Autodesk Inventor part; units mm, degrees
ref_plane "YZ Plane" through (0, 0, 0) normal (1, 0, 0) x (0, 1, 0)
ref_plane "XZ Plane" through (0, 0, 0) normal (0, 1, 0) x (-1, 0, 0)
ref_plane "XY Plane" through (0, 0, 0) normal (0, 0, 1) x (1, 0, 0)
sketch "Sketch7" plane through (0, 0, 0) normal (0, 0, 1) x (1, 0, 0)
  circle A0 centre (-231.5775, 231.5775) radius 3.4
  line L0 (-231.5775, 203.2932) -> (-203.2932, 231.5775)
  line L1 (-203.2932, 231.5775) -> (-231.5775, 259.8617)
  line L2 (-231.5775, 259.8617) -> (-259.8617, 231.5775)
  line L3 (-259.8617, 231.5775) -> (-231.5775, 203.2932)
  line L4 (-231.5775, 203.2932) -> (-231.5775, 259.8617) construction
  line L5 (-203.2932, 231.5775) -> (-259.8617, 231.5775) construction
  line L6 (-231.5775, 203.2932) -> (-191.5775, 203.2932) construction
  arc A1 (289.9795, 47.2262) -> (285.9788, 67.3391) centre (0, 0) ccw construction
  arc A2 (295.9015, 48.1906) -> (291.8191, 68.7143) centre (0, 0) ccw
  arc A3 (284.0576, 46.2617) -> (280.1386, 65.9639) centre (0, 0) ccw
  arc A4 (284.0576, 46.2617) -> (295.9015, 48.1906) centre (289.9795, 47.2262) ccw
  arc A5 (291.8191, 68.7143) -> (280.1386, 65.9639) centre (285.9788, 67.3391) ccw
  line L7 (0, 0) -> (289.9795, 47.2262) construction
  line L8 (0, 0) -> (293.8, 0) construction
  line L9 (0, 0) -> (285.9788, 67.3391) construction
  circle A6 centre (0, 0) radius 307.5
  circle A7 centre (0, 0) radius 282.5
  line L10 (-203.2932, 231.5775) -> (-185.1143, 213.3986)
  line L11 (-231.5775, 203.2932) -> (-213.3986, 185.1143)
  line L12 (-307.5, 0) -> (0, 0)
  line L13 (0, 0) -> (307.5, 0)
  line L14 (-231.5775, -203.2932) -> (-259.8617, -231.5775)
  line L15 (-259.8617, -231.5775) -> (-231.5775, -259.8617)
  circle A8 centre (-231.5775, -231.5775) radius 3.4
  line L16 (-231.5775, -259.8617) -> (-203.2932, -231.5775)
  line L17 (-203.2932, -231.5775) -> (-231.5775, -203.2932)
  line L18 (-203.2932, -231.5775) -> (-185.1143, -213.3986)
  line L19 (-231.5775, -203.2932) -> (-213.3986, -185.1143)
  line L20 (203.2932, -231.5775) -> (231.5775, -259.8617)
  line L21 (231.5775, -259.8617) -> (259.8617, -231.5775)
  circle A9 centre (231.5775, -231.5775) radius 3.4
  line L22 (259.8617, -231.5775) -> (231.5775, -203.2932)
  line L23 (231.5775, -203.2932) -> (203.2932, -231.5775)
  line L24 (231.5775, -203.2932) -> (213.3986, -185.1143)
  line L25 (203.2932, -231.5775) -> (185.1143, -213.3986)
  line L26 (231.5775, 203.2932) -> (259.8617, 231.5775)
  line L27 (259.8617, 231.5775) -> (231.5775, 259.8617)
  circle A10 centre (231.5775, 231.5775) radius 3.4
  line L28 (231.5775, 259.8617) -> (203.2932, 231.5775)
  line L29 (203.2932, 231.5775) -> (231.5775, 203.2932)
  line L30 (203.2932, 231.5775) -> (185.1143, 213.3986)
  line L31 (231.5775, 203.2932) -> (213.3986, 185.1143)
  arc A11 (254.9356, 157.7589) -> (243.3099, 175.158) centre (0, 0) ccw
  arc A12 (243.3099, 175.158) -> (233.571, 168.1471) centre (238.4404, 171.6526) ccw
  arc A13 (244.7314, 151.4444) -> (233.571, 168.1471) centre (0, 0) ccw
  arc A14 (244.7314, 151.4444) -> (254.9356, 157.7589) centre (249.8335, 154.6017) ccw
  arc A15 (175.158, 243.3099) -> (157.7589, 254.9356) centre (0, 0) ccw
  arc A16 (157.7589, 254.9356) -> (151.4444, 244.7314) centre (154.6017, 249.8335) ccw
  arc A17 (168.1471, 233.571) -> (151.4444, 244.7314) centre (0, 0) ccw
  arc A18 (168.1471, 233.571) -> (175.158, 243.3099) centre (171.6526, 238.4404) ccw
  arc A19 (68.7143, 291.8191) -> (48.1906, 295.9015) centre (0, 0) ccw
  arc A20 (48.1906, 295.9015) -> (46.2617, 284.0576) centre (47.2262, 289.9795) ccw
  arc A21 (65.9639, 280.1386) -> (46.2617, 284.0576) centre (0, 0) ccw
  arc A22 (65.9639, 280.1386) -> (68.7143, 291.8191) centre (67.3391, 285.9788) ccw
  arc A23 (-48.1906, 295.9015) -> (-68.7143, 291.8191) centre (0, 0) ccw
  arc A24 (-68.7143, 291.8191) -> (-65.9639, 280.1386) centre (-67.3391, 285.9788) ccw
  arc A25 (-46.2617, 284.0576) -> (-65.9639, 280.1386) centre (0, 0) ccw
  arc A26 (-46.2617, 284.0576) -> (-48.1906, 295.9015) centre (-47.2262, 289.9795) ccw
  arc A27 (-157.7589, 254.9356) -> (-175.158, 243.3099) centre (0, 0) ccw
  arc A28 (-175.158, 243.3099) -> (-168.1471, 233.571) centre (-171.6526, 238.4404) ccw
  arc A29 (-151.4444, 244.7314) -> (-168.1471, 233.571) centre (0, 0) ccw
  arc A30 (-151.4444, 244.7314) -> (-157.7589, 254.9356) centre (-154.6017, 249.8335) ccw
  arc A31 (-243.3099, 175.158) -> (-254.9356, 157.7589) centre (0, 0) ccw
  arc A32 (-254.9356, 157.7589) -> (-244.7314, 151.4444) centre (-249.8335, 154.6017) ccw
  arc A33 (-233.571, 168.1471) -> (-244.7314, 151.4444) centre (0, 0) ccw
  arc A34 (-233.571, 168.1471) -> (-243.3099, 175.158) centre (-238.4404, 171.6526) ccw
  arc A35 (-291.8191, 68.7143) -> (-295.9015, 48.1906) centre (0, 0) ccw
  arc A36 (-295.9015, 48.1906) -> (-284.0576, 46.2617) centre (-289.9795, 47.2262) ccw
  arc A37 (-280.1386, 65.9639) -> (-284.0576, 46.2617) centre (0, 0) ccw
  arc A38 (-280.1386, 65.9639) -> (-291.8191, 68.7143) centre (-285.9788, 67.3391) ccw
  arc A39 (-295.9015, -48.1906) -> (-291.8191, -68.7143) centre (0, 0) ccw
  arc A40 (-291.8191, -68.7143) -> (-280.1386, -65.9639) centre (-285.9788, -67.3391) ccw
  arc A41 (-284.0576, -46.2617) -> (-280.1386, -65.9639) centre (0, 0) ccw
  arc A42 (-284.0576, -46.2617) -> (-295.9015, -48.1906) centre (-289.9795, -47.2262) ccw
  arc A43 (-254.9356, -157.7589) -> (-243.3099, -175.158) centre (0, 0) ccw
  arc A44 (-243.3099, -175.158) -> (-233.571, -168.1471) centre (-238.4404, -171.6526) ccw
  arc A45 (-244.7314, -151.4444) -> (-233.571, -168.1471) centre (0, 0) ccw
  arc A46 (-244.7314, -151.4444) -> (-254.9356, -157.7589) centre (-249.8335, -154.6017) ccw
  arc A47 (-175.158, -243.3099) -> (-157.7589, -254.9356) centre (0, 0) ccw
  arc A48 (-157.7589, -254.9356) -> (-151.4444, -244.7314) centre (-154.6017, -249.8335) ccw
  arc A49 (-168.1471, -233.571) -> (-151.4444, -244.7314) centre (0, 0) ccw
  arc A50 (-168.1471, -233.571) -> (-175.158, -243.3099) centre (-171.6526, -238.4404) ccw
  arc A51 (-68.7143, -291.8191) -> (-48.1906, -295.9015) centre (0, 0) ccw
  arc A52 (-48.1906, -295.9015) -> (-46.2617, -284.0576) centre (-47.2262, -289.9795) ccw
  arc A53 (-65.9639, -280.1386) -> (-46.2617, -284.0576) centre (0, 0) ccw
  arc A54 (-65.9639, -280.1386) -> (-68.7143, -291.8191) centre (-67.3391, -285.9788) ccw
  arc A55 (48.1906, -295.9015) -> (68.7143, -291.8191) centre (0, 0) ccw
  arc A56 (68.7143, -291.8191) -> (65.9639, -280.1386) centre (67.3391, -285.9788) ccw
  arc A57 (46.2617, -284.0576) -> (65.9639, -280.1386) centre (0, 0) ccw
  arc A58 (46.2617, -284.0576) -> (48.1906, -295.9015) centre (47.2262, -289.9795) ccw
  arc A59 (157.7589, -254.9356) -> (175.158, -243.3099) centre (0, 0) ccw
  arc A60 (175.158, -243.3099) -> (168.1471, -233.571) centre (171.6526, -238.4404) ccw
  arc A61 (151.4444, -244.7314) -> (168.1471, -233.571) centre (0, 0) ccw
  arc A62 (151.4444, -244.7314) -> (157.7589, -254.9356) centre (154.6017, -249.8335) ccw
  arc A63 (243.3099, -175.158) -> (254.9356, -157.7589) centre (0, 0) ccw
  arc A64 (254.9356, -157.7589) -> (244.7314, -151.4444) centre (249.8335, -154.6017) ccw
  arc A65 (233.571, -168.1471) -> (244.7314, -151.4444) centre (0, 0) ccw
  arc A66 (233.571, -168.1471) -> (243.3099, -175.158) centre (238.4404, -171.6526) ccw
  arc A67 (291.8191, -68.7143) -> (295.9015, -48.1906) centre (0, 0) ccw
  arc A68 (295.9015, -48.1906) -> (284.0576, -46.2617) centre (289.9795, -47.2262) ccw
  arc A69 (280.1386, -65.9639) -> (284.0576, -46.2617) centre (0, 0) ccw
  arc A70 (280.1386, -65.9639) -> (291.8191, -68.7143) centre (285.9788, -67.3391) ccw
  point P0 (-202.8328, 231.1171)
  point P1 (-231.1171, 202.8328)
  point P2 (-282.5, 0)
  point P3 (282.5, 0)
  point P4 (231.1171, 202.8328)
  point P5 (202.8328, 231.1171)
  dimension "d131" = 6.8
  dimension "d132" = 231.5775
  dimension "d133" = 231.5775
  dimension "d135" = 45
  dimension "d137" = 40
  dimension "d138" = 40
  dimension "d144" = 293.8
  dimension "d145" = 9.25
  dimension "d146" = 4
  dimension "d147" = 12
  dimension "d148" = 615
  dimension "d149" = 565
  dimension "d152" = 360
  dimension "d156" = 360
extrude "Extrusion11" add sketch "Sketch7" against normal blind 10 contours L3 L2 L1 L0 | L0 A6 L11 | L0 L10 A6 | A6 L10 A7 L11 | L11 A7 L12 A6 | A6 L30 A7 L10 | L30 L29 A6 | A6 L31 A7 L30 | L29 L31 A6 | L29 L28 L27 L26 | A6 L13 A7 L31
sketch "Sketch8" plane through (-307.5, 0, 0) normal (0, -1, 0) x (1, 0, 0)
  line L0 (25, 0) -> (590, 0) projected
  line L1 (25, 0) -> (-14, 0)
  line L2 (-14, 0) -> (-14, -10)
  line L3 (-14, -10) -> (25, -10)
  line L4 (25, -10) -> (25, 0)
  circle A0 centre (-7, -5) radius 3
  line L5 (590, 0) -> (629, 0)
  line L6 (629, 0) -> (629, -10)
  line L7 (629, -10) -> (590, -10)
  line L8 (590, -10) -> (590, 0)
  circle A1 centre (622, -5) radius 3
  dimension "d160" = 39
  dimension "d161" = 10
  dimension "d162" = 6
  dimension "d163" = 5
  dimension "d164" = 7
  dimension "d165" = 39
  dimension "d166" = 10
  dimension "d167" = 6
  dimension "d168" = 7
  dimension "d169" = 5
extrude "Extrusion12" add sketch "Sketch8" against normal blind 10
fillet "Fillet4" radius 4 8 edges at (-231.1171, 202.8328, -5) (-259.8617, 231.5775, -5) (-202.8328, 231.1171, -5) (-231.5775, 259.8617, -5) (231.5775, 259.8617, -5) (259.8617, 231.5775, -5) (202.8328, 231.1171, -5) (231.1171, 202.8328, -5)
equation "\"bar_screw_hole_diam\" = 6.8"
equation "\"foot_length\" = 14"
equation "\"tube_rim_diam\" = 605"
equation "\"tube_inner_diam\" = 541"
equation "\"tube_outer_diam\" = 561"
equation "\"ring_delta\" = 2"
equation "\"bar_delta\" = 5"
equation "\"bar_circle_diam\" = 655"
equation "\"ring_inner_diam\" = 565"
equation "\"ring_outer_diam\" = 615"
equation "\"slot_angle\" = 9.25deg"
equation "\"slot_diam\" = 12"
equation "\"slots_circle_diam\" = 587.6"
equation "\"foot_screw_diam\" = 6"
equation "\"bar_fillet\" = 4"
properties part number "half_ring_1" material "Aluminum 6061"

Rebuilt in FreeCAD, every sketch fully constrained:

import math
import FreeCAD as App
import Part
import Sketcher


def edges_at(feature, points):
    """Names of the edges that pass closest to the given points."""
    edges = feature.Shape.Edges
    near = lambda p: min(range(len(edges)), key=lambda i: edges[i].distToShape(Part.Vertex(*p))[0])
    return sorted({f"Edge{near(p) + 1}" for p in points})


def add_polygon(sketch, points):
    """Adds a closed chain of lines whose ends are joined by coincident constraints."""
    first, n = sketch.GeometryCount, len(points)
    for a, b in zip(points, points[1:] + points[:1]):
        sketch.addGeometry(Part.LineSegment(App.Vector(*a, 0), App.Vector(*b, 0)), False)
    for i in range(n):
        sketch.addConstraint(Sketcher.Constraint("Coincident", first + i, 2, first + (i + 1) % n, 1))

doc = App.newDocument("Part")
params = doc.addObject("Spreadsheet::Sheet", "Params")
for row, (alias, value) in enumerate([
    ("sketch1_radius", "6 mm"),
    ("sketch1_diameter", "6.8 mm"),
    ("sketch1_radius2", "307.5 mm"),
    ("sketch1_radius3", "282.5 mm"),
    ("sketch1_length", "40 mm"),
    ("pad1_length", "10 mm"),
    ("sketch2_diameter", "6 mm"),
    ("sketch2_width", "39 mm"),
    ("sketch2_height", "10 mm"),
    ("pad2_length", "10 mm"),
    ("fillet_radius", "4 mm"),
], start=1):
    params.set(f"A{row}", alias)
    params.set(f"B{row}", "=" + value)
    params.setAlias(f"B{row}", alias)

body = doc.addObject("PartDesign::Body", "Body")

# Sketch on XY plane
sketch1 = doc.addObject("Sketcher::SketchObject", "Sketch")
body.addObject(sketch1)
sketch1.AttachmentSupport = (doc.XY_Plane, [""])
sketch1.MapMode = "FlatFace"
sketch1.addGeometry(Part.LineSegment(App.Vector(-259.8617, 231.5775, 0), App.Vector(-231.5775, 203.2932, 0)), False)
sketch1.addGeometry(Part.LineSegment(App.Vector(-231.5775, 203.2932, 0), App.Vector(-231.11709, 202.83279, 0)), False)
sketch1.addGeometry(Part.ArcOfCircle(Part.Circle(App.Vector(0, 0, 0), App.Vector(0, 0, 1), 307.5), math.radians(138.729191), math.radians(180)), False)
sketch1.addGeometry(Part.LineSegment(App.Vector(-307.5, 0, 0), App.Vector(-282.5, 0, 0)), False)
sketch1.addGeometry(Part.ArcOfCircle(Part.Circle(App.Vector(0, 0, 0), App.Vector(0, 0, 1), 282.5), math.radians(0), math.radians(180)), False)
sketch1.addGeometry(Part.LineSegment(App.Vector(282.5, 0, 0), App.Vector(307.5, 0, 0)), False)
sketch1.addGeometry(Part.ArcOfCircle(Part.Circle(App.Vector(0, 0, 0), App.Vector(0, 0, 1), 307.5), math.radians(0), math.radians(41.270809)), False)
sketch1.addGeometry(Part.LineSegment(App.Vector(231.11709, 202.83279, 0), App.Vector(231.5775, 203.2932, 0)), False)
sketch1.addGeometry(Part.LineSegment(App.Vector(231.5775, 203.2932, 0), App.Vector(259.8617, 231.5775, 0)), False)
sketch1.addGeometry(Part.LineSegment(App.Vector(259.8617, 231.5775, 0), App.Vector(231.5775, 259.8617, 0)), False)
sketch1.addGeometry(Part.LineSegment(App.Vector(231.5775, 259.8617, 0), App.Vector(203.2932, 231.5775, 0)), False)
sketch1.addGeometry(Part.LineSegment(App.Vector(203.2932, 231.5775, 0), App.Vector(202.83279, 231.11709, 0)), False)
sketch1.addGeometry(Part.ArcOfCircle(Part.Circle(App.Vector(0, 0, 0), App.Vector(0, 0, 1), 307.5), math.radians(48.729191), math.radians(131.270809)), False)
sketch1.addGeometry(Part.LineSegment(App.Vector(-202.83279, 231.11709, 0), App.Vector(-203.2932, 231.5775, 0)), False)
sketch1.addGeometry(Part.LineSegment(App.Vector(-203.2932, 231.5775, 0), App.Vector(-231.5775, 259.8617, 0)), False)
sketch1.addGeometry(Part.LineSegment(App.Vector(-231.5775, 259.8617, 0), App.Vector(-259.8617, 231.5775, 0)), False)
sketch1.addGeometry(Part.Circle(App.Vector(-231.5775, 231.5775, 0), App.Vector(0, 0, 1), 3.4), False)
sketch1.addGeometry(Part.ArcOfCircle(Part.Circle(App.Vector(-238.4404, 171.6526, 0), App.Vector(0, 0, 1), 5.999966), math.radians(-35.75026), math.radians(144.251072)), False)
sketch1.addGeometry(Part.ArcOfCircle(Part.Circle(App.Vector(0.006044, -0.004193, 0), App.Vector(0, 0, 1), 287.807389), math.radians(144.250019), math.radians(148.249921)), False)
sketch1.addGeometry(Part.ArcOfCircle(Part.Circle(App.Vector(-249.8335, 154.6017, 0), App.Vector(0, 0, 1), 5.999945), math.radians(148.250611), math.radians(328.249799)), False)
sketch1.addGeometry(Part.ArcOfCircle(Part.Circle(App.Vector(-0.001941, 0.001346, 0), App.Vector(0, 0, 1), 299.797625), math.radians(144.250002), math.radians(148.25003)), False)
sketch1.addGeometry(Part.ArcOfCircle(Part.Circle(App.Vector(-0.014072, 0.003055, 0), App.Vector(0, 0, 1), 299.785605), math.radians(166.749948), math.radians(170.750148)), False)
sketch1.addGeometry(Part.ArcOfCircle(Part.Circle(App.Vector(-285.9788, 67.3391, 0), App.Vector(0, 0, 1), 5.999926), math.radians(-13.250144), math.radians(166.750075)), False)
sketch1.addGeometry(Part.ArcOfCircle(Part.Circle(App.Vector(-0.008792, 0.001909, 0), App.Vector(0, 0, 1), 287.791059), math.radians(166.749966), math.radians(170.750097)), False)
sketch1.addGeometry(Part.ArcOfCircle(Part.Circle(App.Vector(-289.9795, 47.2262, 0), App.Vector(0, 0, 1), 6.000013), math.radians(170.750556), math.radians(350.74946)), False)
sketch1.addGeometry(Part.ArcOfCircle(Part.Circle(App.Vector(171.6526, 238.4404, 0), App.Vector(0, 0, 1), 5.999966), math.radians(-125.75026), math.radians(54.251072)), False)
sketch1.addGeometry(Part.ArcOfCircle(Part.Circle(App.Vector(-0.004193, -0.006044, 0), App.Vector(0, 0, 1), 287.807389), math.radians(54.250019), math.radians(58.249921)), False)
sketch1.addGeometry(Part.ArcOfCircle(Part.Circle(App.Vector(154.6017, 249.8335, 0), App.Vector(0, 0, 1), 5.999945), math.radians(58.250611), math.radians(238.249799)), False)
sketch1.addGeometry(Part.ArcOfCircle(Part.Circle(App.Vector(0.001346, 0.001941, 0), App.Vector(0, 0, 1), 299.797625), math.radians(54.250002), math.radians(58.25003)), False)
sketch1.addGeometry(Part.ArcOfCircle(Part.Circle(App.Vector(0.001278, -0.001987, 0), App.Vector(0, 0, 1), 299.802346), math.radians(121.750002), math.radians(125.749966)), False)
sketch1.addGeometry(Part.ArcOfCircle(Part.Circle(App.Vector(-154.6017, 249.8335, 0), App.Vector(0, 0, 1), 5.999997), math.radians(-58.249799), math.radians(121.749389)), False)
sketch1.addGeometry(Part.ArcOfCircle(Part.Circle(App.Vector(-0.003979, 0.006187, 0), App.Vector(0, 0, 1), 287.792688), math.radians(121.749977), math.radians(125.750083)), False)
sketch1.addGeometry(Part.ArcOfCircle(Part.Circle(App.Vector(-171.6526, 238.4404, 0), App.Vector(0, 0, 1), 5.999988), math.radians(125.748928), math.radians(305.75026)), False)
sketch1.addGeometry(Part.ArcOfCircle(Part.Circle(App.Vector(0.002563, -0.014172, 0), App.Vector(0, 0, 1), 299.814386), math.radians(99.250044), math.radians(103.24986)), False)
sketch1.addGeometry(Part.ArcOfCircle(Part.Circle(App.Vector(-47.2262, 289.9795, 0), App.Vector(0, 0, 1), 5.99993), math.radians(-80.74946), math.radians(99.249444)), False)
sketch1.addGeometry(Part.ArcOfCircle(Part.Circle(App.Vector(0.001601, -0.008854, 0), App.Vector(0, 0, 1), 287.809039), math.radians(99.250028), math.radians(103.249909)), False)
sketch1.addGeometry(Part.ArcOfCircle(Part.Circle(App.Vector(-67.3391, 285.9788, 0), App.Vector(0, 0, 1), 6.000023), math.radians(103.249925), math.radians(283.250144)), False)
sketch1.addGeometry(Part.ArcOfCircle(Part.Circle(App.Vector(0.003055, 0.014072, 0), App.Vector(0, 0, 1), 299.785605), math.radians(76.749948), math.radians(80.750148)), False)
sketch1.addGeometry(Part.ArcOfCircle(Part.Circle(App.Vector(67.3391, 285.9788, 0), App.Vector(0, 0, 1), 5.999926), math.radians(-103.250144), math.radians(76.750075)), False)
sketch1.addGeometry(Part.ArcOfCircle(Part.Circle(App.Vector(0.001909, 0.008792, 0), App.Vector(0, 0, 1), 287.791059), math.radians(76.749966), math.radians(80.750097)), False)
sketch1.addGeometry(Part.ArcOfCircle(Part.Circle(App.Vector(47.2262, 289.9795, 0), App.Vector(0, 0, 1), 6.000013), math.radians(80.750556), math.radians(260.74946)), False)
sketch1.addGeometry(Part.ArcOfCircle(Part.Circle(App.Vector(249.8335, 154.6017, 0), App.Vector(0, 0, 1), 5.999997), math.radians(-148.249799), math.radians(31.749389)), False)
sketch1.addGeometry(Part.ArcOfCircle(Part.Circle(App.Vector(0.006187, 0.003979, 0), App.Vector(0, 0, 1), 287.792688), math.radians(31.749977), math.radians(35.750083)), False)
sketch1.addGeometry(Part.ArcOfCircle(Part.Circle(App.Vector(238.4404, 171.6526, 0), App.Vector(0, 0, 1), 5.999988), math.radians(35.748928), math.radians(215.75026)), False)
sketch1.addGeometry(Part.ArcOfCircle(Part.Circle(App.Vector(-0.001987, -0.001278, 0), App.Vector(0, 0, 1), 299.802346), math.radians(31.750002), math.radians(35.749966)), False)
sketch1.addGeometry(Part.ArcOfCircle(Part.Circle(App.Vector(-0.014172, -0.002563, 0), App.Vector(0, 0, 1), 299.814386), math.radians(9.250044), math.radians(13.24986)), False)
sketch1.addGeometry(Part.ArcOfCircle(Part.Circle(App.Vector(289.9795, 47.2262, 0), App.Vector(0, 0, 1), 5.99993), math.radians(-170.74946), math.radians(9.249444)), False)
sketch1.addGeometry(Part.ArcOfCircle(Part.Circle(App.Vector(-0.008854, -0.001601, 0), App.Vector(0, 0, 1), 287.809039), math.radians(9.250028), math.radians(13.249909)), False)
sketch1.addGeometry(Part.ArcOfCircle(Part.Circle(App.Vector(285.9788, 67.3391, 0), App.Vector(0, 0, 1), 6.000023), math.radians(13.249925), math.radians(193.250144)), False)
sketch1.addGeometry(Part.Circle(App.Vector(231.5775, 231.5775, 0), App.Vector(0, 0, 1), 3.4), False)
sketch1.addConstraint(Sketcher.Constraint("Coincident", 0, 2, 1, 1))
sketch1.addConstraint(Sketcher.Constraint("Coincident", 1, 2, 2, 1))
sketch1.addConstraint(Sketcher.Constraint("Coincident", 2, 2, 3, 1))
sketch1.addConstraint(Sketcher.Constraint("Coincident", 3, 2, 4, 2))
sketch1.addConstraint(Sketcher.Constraint("Coincident", 4, 1, 5, 1))
sketch1.addConstraint(Sketcher.Constraint("Coincident", 5, 2, 6, 1))
sketch1.addConstraint(Sketcher.Constraint("Coincident", 6, 2, 7, 1))
sketch1.addConstraint(Sketcher.Constraint("Coincident", 7, 2, 8, 1))
sketch1.addConstraint(Sketcher.Constraint("Coincident", 8, 2, 9, 1))
sketch1.addConstraint(Sketcher.Constraint("Coincident", 9, 2, 10, 1))
sketch1.addConstraint(Sketcher.Constraint("Coincident", 10, 2, 11, 1))
sketch1.addConstraint(Sketcher.Constraint("Coincident", 11, 2, 12, 1))
sketch1.addConstraint(Sketcher.Constraint("Coincident", 12, 2, 13, 1))
sketch1.addConstraint(Sketcher.Constraint("Coincident", 13, 2, 14, 1))
sketch1.addConstraint(Sketcher.Constraint("Coincident", 14, 2, 15, 1))
sketch1.addConstraint(Sketcher.Constraint("Coincident", 15, 2, 0, 1))
sketch1.addConstraint(Sketcher.Constraint("Tangent", 17, 1, 18, 1))
sketch1.addConstraint(Sketcher.Constraint("Tangent", 18, 2, 19, 2))
sketch1.addConstraint(Sketcher.Constraint("Tangent", 19, 1, 20, 2))
sketch1.addConstraint(Sketcher.Constraint("Tangent", 20, 1, 17, 2))
sketch1.addConstraint(Sketcher.Constraint("Tangent", 21, 1, 22, 2))
sketch1.addConstraint(Sketcher.Constraint("Tangent", 22, 1, 23, 1))
sketch1.addConstraint(Sketcher.Constraint("Tangent", 23, 2, 24, 2))
sketch1.addConstraint(Sketcher.Constraint("Tangent", 24, 1, 21, 2))
sketch1.addConstraint(Sketcher.Constraint("Tangent", 25, 1, 26, 1))
sketch1.addConstraint(Sketcher.Constraint("Tangent", 26, 2, 27, 2))
sketch1.addConstraint(Sketcher.Constraint("Tangent", 27, 1, 28, 2))
sketch1.addConstraint(Sketcher.Constraint("Tangent", 28, 1, 25, 2))
sketch1.addConstraint(Sketcher.Constraint("Tangent", 29, 1, 30, 2))
sketch1.addConstraint(Sketcher.Constraint("Tangent", 30, 1, 31, 1))
sketch1.addConstraint(Sketcher.Constraint("Tangent", 31, 2, 32, 2))
sketch1.addConstraint(Sketcher.Constraint("Tangent", 32, 1, 29, 2))
sketch1.addConstraint(Sketcher.Constraint("Tangent", 33, 1, 34, 2))
sketch1.addConstraint(Sketcher.Constraint("Tangent", 34, 1, 35, 1))
sketch1.addConstraint(Sketcher.Constraint("Tangent", 35, 2, 36, 2))
sketch1.addConstraint(Sketcher.Constraint("Tangent", 36, 1, 33, 2))
sketch1.addConstraint(Sketcher.Constraint("Tangent", 37, 1, 38, 2))
sketch1.addConstraint(Sketcher.Constraint("Tangent", 38, 1, 39, 1))
sketch1.addConstraint(Sketcher.Constraint("Tangent", 39, 2, 40, 2))
sketch1.addConstraint(Sketcher.Constraint("Tangent", 40, 1, 37, 2))
sketch1.addConstraint(Sketcher.Constraint("Tangent", 41, 1, 42, 1))
sketch1.addConstraint(Sketcher.Constraint("Tangent", 42, 2, 43, 2))
sketch1.addConstraint(Sketcher.Constraint("Tangent", 43, 1, 44, 2))
sketch1.addConstraint(Sketcher.Constraint("Tangent", 44, 1, 41, 2))
sketch1.addConstraint(Sketcher.Constraint("Tangent", 45, 1, 46, 2))
sketch1.addConstraint(Sketcher.Constraint("Tangent", 46, 1, 47, 1))
sketch1.addConstraint(Sketcher.Constraint("Tangent", 47, 2, 48, 2))
sketch1.addConstraint(Sketcher.Constraint("Tangent", 48, 1, 45, 2))
sketch1.addConstraint(Sketcher.Constraint("Horizontal", 3))
sketch1.addConstraint(Sketcher.Constraint("Horizontal", 5))
sketch1.addConstraint(Sketcher.Constraint("Coincident", 2, 3, -1, 1))
sketch1.addConstraint(Sketcher.Constraint("Coincident", 4, 3, -1, 1))
sketch1.addConstraint(Sketcher.Constraint("Coincident", 6, 3, -1, 1))
sketch1.addConstraint(Sketcher.Constraint("Coincident", 12, 3, -1, 1))
sketch1.addConstraint(Sketcher.Constraint("Equal", 2, 6))
sketch1.addConstraint(Sketcher.Constraint("Equal", 6, 12))
sketch1.addConstraint(Sketcher.Constraint("Equal", 17, 19))
sketch1.addConstraint(Sketcher.Constraint("Equal", 19, 22))
sketch1.addConstraint(Sketcher.Constraint("Equal", 22, 24))
sketch1.addConstraint(Sketcher.Constraint("Equal", 24, 25))
sketch1.addConstraint(Sketcher.Constraint("Equal", 18, 26))
sketch1.addConstraint(Sketcher.Constraint("Equal", 25, 27))
sketch1.addConstraint(Sketcher.Constraint("Equal", 20, 28))
sketch1.addConstraint(Sketcher.Constraint("Equal", 27, 30))
sketch1.addConstraint(Sketcher.Constraint("Equal", 30, 32))
sketch1.addConstraint(Sketcher.Constraint("Equal", 32, 34))
sketch1.addConstraint(Sketcher.Constraint("Equal", 34, 36))
sketch1.addConstraint(Sketcher.Constraint("Equal", 21, 37))
sketch1.addConstraint(Sketcher.Constraint("Equal", 36, 38))
sketch1.addConstraint(Sketcher.Constraint("Equal", 23, 39))
sketch1.addConstraint(Sketcher.Constraint("Equal", 38, 40))
sketch1.addConstraint(Sketcher.Constraint("Equal", 40, 41))
sketch1.addConstraint(Sketcher.Constraint("Equal", 31, 42))
sketch1.addConstraint(Sketcher.Constraint("Equal", 41, 43))
sketch1.addConstraint(Sketcher.Constraint("Equal", 29, 44))
sketch1.addConstraint(Sketcher.Constraint("Equal", 33, 45))
sketch1.addConstraint(Sketcher.Constraint("Equal", 43, 46))
sketch1.addConstraint(Sketcher.Constraint("Equal", 35, 47))
sketch1.addConstraint(Sketcher.Constraint("Equal", 46, 48))
sketch1.addConstraint(Sketcher.Constraint("Equal", 16, 49))
sketch1.addConstraint(Sketcher.Constraint("Symmetric", 27, 3, 30, 3, -2))
sketch1.addConstraint(Sketcher.Constraint("Symmetric", 25, 3, 32, 3, -2))
sketch1.addConstraint(Sketcher.Constraint("Symmetric", 36, 3, 38, 3, -2))
sketch1.addConstraint(Sketcher.Constraint("Symmetric", 34, 3, 40, 3, -2))
sketch1.addConstraint(Sketcher.Constraint("Symmetric", 19, 3, 41, 3, -2))
sketch1.addConstraint(Sketcher.Constraint("Symmetric", 17, 3, 43, 3, -2))
sketch1.addConstraint(Sketcher.Constraint("Symmetric", 24, 3, 46, 3, -2))
sketch1.addConstraint(Sketcher.Constraint("Symmetric", 22, 3, 48, 3, -2))
sketch1.addConstraint(Sketcher.Constraint("Symmetric", 16, 3, 49, 3, -2))
sketch1.addConstraint(Sketcher.Constraint("Symmetric", 0, 2, 7, 2, -2))
sketch1.addConstraint(Sketcher.Constraint("Symmetric", 10, 2, 13, 2, -2))
sketch1.addConstraint(Sketcher.Constraint("Symmetric", 9, 2, 14, 2, -2))
sketch1.addConstraint(Sketcher.Constraint("Symmetric", 8, 2, 15, 2, -2))
sketch1.addConstraint(Sketcher.Constraint("Symmetric", 28, 3, 29, 3, -1))
sketch1.addConstraint(Sketcher.Constraint("Symmetric", 35, 3, 39, 3, -1))
sketch1.addConstraint(Sketcher.Constraint("Symmetric", 18, 3, 42, 3, -1))
sketch1.addConstraint(Sketcher.Constraint("Symmetric", 23, 3, 47, 3, -1))
sketch1.addConstraint(Sketcher.Constraint("PointOnObject", 2, 2, -1))
sketch1.addConstraint(Sketcher.Constraint("PointOnObject", 4, 1, -1))
sketch1.addConstraint(Sketcher.Constraint("Parallel", 0, 1))
sketch1.addConstraint(Sketcher.Constraint("Perpendicular", 1, 7))
sketch1.addConstraint(Sketcher.Constraint("Parallel", 7, 8))
sketch1.addConstraint(Sketcher.Constraint("Perpendicular", 8, 9))
sketch1.addConstraint(Sketcher.Constraint("Perpendicular", 9, 10))
sketch1.addConstraint(Sketcher.Constraint("Parallel", 10, 11))
sketch1.addConstraint(Sketcher.Constraint("Perpendicular", 11, 13))
sketch1.addConstraint(Sketcher.Constraint("Horizontal", 23, 3, 28, 3))
sketch1.addConstraint(Sketcher.Constraint("Horizontal", 49, 3, 8, 2))
sketch1.addConstraint(Sketcher.Constraint("Horizontal", 8, 2, 10, 2))
sketch1.addConstraint(Sketcher.Constraint("Vertical", 20, 3, 44, 3))
sketch1.addConstraint(Sketcher.Constraint("Vertical", 21, 3, 45, 3))
sketch1.addConstraint(Sketcher.Constraint("Vertical", 16, 3, 0, 2))
sketch1.addConstraint(Sketcher.Constraint("Vertical", 7, 2, 9, 2))
sketch1.addConstraint(Sketcher.Constraint("Equal", 7, 11))
sketch1.addConstraint(Sketcher.Constraint("Radius", 17, 6.0))
sketch1.addConstraint(Sketcher.Constraint("Diameter", 16, 6.8))
sketch1.addConstraint(Sketcher.Constraint("Radius", 2, 307.5))
sketch1.addConstraint(Sketcher.Constraint("Radius", 4, 282.5))
sketch1.addConstraint(Sketcher.Constraint("Distance", 0, 40.0))
sketch1.addConstraint(Sketcher.Constraint("Radius", 23, 287.791))
sketch1.addConstraint(Sketcher.Constraint("Radius", 35, 287.809))
sketch1.addConstraint(Sketcher.Constraint("DistanceX", 16, 3, -1, 1, 231.5775))
sketch1.addConstraint(Sketcher.Constraint("Radius", 18, 287.8074))
sketch1.addConstraint(Sketcher.Constraint("Radius", 20, 299.7976))
sketch1.addConstraint(Sketcher.Constraint("Radius", 21, 299.7856))
sketch1.addConstraint(Sketcher.Constraint("DistanceX", 20, 1, -1, 1, 243.31))
sketch1.addConstraint(Sketcher.Constraint("DistanceY", -1, 1, 28, 1, 243.31))
sketch1.addConstraint(Sketcher.Constraint("DistanceY", -1, 1, 22, 3, 67.339))
sketch1.addConstraint(Sketcher.Constraint("DistanceX", 36, 3, -1, 1, 67.339))
sketch1.addConstraint(Sketcher.Constraint("DistanceY", -1, 1, 19, 1, 157.759))
sketch1.addConstraint(Sketcher.Constraint("DistanceX", -1, 1, 27, 1, 157.759))
sketch1.addConstraint(Sketcher.Constraint("DistanceX", 24, 3, -1, 1, 289.9795))
sketch1.addConstraint(Sketcher.Constraint("DistanceX", 34, 3, -1, 1, 47.2262))
sketch1.setExpression("Constraints[114]", "Params.sketch1_radius")
sketch1.setExpression("Constraints[115]", "Params.sketch1_diameter")
sketch1.setExpression("Constraints[116]", "Params.sketch1_radius2")
sketch1.setExpression("Constraints[117]", "Params.sketch1_radius3")
sketch1.setExpression("Constraints[118]", "Params.sketch1_length")
pad1 = doc.addObject("PartDesign::Pad", "Pad")
body.addObject(pad1)
pad1.Profile = sketch1
pad1.setExpression("Length", "Params.pad1_length")
pad1.Reversed = True

# Sketch on XZ plane
sketch2 = doc.addObject("Sketcher::SketchObject", "Sketch001")
body.addObject(sketch2)
sketch2.AttachmentSupport = (doc.XZ_Plane, [""])
sketch2.MapMode = "FlatFace"
add_polygon(sketch2, [(321.5, 0), (282.5, 0), (282.5, -10), (321.5, -10)])  # lines 0-3
sketch2.addGeometry(Part.Circle(App.Vector(314.5, -5, 0), App.Vector(0, 0, 1), 3), False)  # 4
add_polygon(sketch2, [(-282.5, -10), (-282.5, 0), (-321.5, 0), (-321.5, -10)])  # lines 5-8
sketch2.addGeometry(Part.Circle(App.Vector(-314.5, -5, 0), App.Vector(0, 0, 1), 3), False)  # 9
sketch2.addConstraint(Sketcher.Constraint("Horizontal", 0))
sketch2.addConstraint(Sketcher.Constraint("Vertical", 1))
sketch2.addConstraint(Sketcher.Constraint("Horizontal", 2))
sketch2.addConstraint(Sketcher.Constraint("Vertical", 3))
sketch2.addConstraint(Sketcher.Constraint("Vertical", 5))
sketch2.addConstraint(Sketcher.Constraint("Horizontal", 6))
sketch2.addConstraint(Sketcher.Constraint("Vertical", 7))
sketch2.addConstraint(Sketcher.Constraint("Horizontal", 8))
sketch2.addConstraint(Sketcher.Constraint("Equal", 4, 9))
sketch2.addConstraint(Sketcher.Constraint("Symmetric", 0, 2, 5, 2, -1, 1))
sketch2.addConstraint(Sketcher.Constraint("Symmetric", 4, 3, 9, 3, -2))
sketch2.addConstraint(Sketcher.Constraint("Symmetric", 3, 2, 6, 2, -2))
sketch2.addConstraint(Sketcher.Constraint("Horizontal", 2, 2, 7, 2))
sketch2.addConstraint(Sketcher.Constraint("Diameter", 4, 6.0))
sketch2.addConstraint(Sketcher.Constraint("DistanceX", 0, 2, 0, 1, 39.0))
sketch2.addConstraint(Sketcher.Constraint("DistanceY", 1, 2, 1, 1, 10.0))
sketch2.addConstraint(Sketcher.Constraint("DistanceY", 4, 3, -1, 1, 5.0))
sketch2.addConstraint(Sketcher.Constraint("DistanceX", 4, 3, 2, 2, 7.0))
sketch2.addConstraint(Sketcher.Constraint("DistanceX", 9, 3, 4, 3, 629.0))
sketch2.setExpression("Constraints[21]", "Params.sketch2_diameter")
sketch2.setExpression("Constraints[22]", "Params.sketch2_width")
sketch2.setExpression("Constraints[23]", "Params.sketch2_height")
pad2 = doc.addObject("PartDesign::Pad", "Pad001")
body.addObject(pad2)
pad2.Profile = sketch2
pad2.setExpression("Length", "Params.pad2_length")
pad2.Reversed = True
doc.recompute()

fillet = doc.addObject("PartDesign::Fillet", "Fillet")
body.addObject(fillet)
fillet.Base = (pad2, edges_at(pad2, [
    (-231.117, 202.833, -5),
    (-259.862, 231.577, -5),
    (-202.833, 231.117, -5),
    (-231.577, 259.862, -5),
    (231.577, 259.862, -5),
    (259.862, 231.577, -5),
    (202.833, 231.117, -5),
    (231.117, 202.833, -5),
]))
fillet.setExpression("Radius", "Params.fillet_radius")

doc.recompute()
